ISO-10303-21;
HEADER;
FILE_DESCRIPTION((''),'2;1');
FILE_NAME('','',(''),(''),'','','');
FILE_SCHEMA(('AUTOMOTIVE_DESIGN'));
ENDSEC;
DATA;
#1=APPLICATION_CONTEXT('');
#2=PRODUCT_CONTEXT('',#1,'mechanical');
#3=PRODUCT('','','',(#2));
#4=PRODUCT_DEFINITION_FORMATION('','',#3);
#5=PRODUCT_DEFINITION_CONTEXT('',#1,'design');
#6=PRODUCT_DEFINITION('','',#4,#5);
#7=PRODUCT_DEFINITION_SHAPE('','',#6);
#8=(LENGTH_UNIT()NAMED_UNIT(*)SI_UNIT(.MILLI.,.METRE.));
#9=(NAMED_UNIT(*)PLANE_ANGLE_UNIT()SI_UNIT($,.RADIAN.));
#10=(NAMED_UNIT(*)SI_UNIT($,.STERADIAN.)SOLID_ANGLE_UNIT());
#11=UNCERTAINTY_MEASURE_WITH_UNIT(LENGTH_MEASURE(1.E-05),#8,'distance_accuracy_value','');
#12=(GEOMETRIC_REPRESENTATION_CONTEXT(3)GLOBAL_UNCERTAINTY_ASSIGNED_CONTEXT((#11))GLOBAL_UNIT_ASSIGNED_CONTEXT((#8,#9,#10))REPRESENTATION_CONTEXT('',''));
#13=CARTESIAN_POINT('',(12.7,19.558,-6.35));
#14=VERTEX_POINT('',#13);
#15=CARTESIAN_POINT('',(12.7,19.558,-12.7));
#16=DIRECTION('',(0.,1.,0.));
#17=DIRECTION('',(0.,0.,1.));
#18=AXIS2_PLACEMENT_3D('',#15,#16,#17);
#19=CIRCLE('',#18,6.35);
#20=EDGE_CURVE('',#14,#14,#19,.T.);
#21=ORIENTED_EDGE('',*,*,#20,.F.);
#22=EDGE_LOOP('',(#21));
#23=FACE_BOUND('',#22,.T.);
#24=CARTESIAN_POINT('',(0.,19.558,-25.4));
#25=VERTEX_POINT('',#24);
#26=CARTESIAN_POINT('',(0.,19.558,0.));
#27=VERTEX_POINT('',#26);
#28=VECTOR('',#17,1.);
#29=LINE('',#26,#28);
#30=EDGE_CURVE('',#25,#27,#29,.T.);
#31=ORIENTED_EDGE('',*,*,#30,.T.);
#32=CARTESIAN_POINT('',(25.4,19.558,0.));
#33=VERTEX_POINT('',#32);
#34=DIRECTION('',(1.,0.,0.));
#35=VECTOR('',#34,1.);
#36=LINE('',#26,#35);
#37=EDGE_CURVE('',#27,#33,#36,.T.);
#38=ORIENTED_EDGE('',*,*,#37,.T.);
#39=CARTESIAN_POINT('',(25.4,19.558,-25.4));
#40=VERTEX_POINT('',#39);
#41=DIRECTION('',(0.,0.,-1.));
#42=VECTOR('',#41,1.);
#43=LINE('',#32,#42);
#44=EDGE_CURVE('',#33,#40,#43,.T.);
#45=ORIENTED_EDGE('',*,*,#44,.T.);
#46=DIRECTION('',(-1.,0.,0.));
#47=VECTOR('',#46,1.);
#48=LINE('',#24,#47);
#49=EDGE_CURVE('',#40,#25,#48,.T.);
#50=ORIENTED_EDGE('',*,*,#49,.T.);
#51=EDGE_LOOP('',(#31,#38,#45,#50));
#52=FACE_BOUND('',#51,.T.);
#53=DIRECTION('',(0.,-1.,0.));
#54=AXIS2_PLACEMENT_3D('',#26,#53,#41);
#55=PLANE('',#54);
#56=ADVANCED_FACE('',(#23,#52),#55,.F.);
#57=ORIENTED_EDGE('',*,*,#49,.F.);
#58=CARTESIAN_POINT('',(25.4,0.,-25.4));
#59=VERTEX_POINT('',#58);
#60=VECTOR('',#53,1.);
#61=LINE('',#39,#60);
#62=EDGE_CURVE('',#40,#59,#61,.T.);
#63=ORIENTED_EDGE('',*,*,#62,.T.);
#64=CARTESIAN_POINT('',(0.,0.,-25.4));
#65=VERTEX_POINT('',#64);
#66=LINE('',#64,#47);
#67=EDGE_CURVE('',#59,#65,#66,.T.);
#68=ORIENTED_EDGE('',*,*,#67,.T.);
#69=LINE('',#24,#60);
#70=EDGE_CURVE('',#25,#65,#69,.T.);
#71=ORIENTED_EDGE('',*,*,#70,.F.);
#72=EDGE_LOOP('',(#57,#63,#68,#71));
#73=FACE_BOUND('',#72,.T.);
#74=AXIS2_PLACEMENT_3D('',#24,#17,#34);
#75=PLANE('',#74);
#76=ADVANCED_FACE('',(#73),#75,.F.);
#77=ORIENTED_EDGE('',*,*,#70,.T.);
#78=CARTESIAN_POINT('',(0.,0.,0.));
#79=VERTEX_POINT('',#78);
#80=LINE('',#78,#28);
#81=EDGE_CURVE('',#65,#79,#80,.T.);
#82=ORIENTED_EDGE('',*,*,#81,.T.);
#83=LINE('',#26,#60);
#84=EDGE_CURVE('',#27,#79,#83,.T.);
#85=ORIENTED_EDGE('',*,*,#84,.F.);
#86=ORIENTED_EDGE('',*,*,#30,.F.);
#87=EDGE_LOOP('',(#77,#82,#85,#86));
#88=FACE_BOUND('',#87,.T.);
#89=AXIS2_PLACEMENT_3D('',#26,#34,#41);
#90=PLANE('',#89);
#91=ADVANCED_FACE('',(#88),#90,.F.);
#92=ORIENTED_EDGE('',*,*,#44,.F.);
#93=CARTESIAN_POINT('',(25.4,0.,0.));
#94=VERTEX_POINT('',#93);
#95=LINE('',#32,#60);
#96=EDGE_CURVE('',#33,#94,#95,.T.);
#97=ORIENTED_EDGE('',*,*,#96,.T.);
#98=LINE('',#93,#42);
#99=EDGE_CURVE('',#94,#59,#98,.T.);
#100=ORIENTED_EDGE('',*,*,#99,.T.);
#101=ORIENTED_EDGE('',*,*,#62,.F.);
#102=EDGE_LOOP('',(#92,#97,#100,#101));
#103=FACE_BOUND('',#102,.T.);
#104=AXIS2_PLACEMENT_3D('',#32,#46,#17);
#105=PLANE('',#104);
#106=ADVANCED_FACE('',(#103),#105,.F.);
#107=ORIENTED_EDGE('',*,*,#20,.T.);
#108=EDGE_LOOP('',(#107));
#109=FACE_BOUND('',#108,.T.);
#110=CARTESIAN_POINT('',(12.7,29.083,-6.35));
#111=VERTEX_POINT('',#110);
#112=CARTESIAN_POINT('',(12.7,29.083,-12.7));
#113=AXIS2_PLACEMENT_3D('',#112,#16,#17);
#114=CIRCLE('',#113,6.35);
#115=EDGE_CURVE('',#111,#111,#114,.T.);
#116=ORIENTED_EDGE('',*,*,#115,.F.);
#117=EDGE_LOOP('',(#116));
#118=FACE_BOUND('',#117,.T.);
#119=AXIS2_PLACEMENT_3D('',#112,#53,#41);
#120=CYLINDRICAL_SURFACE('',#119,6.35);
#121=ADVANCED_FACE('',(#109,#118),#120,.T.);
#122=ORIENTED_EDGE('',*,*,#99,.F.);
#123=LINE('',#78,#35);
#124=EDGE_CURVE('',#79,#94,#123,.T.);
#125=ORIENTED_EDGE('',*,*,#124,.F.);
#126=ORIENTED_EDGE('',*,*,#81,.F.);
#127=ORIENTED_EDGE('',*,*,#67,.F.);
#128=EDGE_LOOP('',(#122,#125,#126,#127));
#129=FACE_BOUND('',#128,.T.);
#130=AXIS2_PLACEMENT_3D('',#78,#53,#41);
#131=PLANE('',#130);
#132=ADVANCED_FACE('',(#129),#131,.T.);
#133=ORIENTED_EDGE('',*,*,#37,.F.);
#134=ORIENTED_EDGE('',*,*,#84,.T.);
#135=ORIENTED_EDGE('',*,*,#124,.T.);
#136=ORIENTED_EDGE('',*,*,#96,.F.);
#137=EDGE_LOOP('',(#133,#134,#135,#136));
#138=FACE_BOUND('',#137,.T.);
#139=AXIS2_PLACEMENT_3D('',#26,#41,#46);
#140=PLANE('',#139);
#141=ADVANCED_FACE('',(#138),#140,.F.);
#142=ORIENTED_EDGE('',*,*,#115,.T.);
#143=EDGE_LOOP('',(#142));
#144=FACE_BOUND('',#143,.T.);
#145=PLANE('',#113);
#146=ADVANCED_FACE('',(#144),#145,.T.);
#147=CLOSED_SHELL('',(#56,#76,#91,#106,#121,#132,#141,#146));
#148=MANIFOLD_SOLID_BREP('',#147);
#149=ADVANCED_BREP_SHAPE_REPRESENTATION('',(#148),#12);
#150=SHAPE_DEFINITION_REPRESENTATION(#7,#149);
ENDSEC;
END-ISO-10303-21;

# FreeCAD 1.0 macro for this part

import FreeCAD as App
import Part
import Sketcher

V = App.Vector
Q = App.Units.Quantity

doc = App.newDocument("Part")
body = doc.addObject("PartDesign::Body", "Body")

sketch1 = body.newObject("Sketcher::SketchObject", "Sketch")
sketch1.AttachmentSupport = (doc.getObject("XZ_Plane"), [""])
sketch1.MapMode = "FlatFace"
sketch1.addGeometry([
    Part.LineSegment(V(0, -25, 0), V(0, 0, 0)),
    Part.LineSegment(V(0, 0, 0), V(25, 0, 0)),
    Part.LineSegment(V(25, 0, 0), V(25, -25, 0)),
    Part.LineSegment(V(25, -25, 0), V(0, -25, 0)),
], False)
sketch1.addConstraint([
    Sketcher.Constraint("Coincident", 0, 2, 1, 1),
    Sketcher.Constraint("Coincident", 1, 2, 2, 1),
    Sketcher.Constraint("Coincident", 2, 2, 3, 1),
    Sketcher.Constraint("Coincident", 3, 2, 0, 1),
    Sketcher.Constraint("Vertical", 0),
    Sketcher.Constraint("Horizontal", 1),
    Sketcher.Constraint("Vertical", 2),
    Sketcher.Constraint("Horizontal", 3),
    Sketcher.Constraint("Coincident", 0, 2, -1, 1),
    Sketcher.Constraint("Equal", 3, 0),
    Sketcher.Constraint("DistanceX", 1, 1, 1, 2, Q("1 in")),
])
pad1 = body.newObject("PartDesign::Pad", "Pad")
pad1.Profile = sketch1
pad1.Length = Q("0.77 in")
pad1.Reversed = True

sketch2 = body.newObject("Sketcher::SketchObject", "Sketch001")
sketch2.AttachmentSupport = (doc.getObject("XZ_Plane"), [""])
sketch2.MapMode = "FlatFace"
sketch2.AttachmentOffset = App.Placement(V(0, 0, -0.77 * 25.4), App.Rotation())
sketch2.addGeometry(Part.Circle(V(13, -13, 0), V(0, 0, 1), 6), False)
sketch2.addConstraint([
    Sketcher.Constraint("Diameter", 0, Q("0.5 in")),
    Sketcher.Constraint("DistanceX", -1, 1, 0, 3, Q("0.5 in")),
    Sketcher.Constraint("DistanceY", 0, 3, -1, 1, Q("0.5 in")),
])
pad2 = body.newObject("PartDesign::Pad", "Pad001")
pad2.Profile = sketch2
pad2.Length = Q("0.375 in")
pad2.Reversed = True

doc.recompute()
